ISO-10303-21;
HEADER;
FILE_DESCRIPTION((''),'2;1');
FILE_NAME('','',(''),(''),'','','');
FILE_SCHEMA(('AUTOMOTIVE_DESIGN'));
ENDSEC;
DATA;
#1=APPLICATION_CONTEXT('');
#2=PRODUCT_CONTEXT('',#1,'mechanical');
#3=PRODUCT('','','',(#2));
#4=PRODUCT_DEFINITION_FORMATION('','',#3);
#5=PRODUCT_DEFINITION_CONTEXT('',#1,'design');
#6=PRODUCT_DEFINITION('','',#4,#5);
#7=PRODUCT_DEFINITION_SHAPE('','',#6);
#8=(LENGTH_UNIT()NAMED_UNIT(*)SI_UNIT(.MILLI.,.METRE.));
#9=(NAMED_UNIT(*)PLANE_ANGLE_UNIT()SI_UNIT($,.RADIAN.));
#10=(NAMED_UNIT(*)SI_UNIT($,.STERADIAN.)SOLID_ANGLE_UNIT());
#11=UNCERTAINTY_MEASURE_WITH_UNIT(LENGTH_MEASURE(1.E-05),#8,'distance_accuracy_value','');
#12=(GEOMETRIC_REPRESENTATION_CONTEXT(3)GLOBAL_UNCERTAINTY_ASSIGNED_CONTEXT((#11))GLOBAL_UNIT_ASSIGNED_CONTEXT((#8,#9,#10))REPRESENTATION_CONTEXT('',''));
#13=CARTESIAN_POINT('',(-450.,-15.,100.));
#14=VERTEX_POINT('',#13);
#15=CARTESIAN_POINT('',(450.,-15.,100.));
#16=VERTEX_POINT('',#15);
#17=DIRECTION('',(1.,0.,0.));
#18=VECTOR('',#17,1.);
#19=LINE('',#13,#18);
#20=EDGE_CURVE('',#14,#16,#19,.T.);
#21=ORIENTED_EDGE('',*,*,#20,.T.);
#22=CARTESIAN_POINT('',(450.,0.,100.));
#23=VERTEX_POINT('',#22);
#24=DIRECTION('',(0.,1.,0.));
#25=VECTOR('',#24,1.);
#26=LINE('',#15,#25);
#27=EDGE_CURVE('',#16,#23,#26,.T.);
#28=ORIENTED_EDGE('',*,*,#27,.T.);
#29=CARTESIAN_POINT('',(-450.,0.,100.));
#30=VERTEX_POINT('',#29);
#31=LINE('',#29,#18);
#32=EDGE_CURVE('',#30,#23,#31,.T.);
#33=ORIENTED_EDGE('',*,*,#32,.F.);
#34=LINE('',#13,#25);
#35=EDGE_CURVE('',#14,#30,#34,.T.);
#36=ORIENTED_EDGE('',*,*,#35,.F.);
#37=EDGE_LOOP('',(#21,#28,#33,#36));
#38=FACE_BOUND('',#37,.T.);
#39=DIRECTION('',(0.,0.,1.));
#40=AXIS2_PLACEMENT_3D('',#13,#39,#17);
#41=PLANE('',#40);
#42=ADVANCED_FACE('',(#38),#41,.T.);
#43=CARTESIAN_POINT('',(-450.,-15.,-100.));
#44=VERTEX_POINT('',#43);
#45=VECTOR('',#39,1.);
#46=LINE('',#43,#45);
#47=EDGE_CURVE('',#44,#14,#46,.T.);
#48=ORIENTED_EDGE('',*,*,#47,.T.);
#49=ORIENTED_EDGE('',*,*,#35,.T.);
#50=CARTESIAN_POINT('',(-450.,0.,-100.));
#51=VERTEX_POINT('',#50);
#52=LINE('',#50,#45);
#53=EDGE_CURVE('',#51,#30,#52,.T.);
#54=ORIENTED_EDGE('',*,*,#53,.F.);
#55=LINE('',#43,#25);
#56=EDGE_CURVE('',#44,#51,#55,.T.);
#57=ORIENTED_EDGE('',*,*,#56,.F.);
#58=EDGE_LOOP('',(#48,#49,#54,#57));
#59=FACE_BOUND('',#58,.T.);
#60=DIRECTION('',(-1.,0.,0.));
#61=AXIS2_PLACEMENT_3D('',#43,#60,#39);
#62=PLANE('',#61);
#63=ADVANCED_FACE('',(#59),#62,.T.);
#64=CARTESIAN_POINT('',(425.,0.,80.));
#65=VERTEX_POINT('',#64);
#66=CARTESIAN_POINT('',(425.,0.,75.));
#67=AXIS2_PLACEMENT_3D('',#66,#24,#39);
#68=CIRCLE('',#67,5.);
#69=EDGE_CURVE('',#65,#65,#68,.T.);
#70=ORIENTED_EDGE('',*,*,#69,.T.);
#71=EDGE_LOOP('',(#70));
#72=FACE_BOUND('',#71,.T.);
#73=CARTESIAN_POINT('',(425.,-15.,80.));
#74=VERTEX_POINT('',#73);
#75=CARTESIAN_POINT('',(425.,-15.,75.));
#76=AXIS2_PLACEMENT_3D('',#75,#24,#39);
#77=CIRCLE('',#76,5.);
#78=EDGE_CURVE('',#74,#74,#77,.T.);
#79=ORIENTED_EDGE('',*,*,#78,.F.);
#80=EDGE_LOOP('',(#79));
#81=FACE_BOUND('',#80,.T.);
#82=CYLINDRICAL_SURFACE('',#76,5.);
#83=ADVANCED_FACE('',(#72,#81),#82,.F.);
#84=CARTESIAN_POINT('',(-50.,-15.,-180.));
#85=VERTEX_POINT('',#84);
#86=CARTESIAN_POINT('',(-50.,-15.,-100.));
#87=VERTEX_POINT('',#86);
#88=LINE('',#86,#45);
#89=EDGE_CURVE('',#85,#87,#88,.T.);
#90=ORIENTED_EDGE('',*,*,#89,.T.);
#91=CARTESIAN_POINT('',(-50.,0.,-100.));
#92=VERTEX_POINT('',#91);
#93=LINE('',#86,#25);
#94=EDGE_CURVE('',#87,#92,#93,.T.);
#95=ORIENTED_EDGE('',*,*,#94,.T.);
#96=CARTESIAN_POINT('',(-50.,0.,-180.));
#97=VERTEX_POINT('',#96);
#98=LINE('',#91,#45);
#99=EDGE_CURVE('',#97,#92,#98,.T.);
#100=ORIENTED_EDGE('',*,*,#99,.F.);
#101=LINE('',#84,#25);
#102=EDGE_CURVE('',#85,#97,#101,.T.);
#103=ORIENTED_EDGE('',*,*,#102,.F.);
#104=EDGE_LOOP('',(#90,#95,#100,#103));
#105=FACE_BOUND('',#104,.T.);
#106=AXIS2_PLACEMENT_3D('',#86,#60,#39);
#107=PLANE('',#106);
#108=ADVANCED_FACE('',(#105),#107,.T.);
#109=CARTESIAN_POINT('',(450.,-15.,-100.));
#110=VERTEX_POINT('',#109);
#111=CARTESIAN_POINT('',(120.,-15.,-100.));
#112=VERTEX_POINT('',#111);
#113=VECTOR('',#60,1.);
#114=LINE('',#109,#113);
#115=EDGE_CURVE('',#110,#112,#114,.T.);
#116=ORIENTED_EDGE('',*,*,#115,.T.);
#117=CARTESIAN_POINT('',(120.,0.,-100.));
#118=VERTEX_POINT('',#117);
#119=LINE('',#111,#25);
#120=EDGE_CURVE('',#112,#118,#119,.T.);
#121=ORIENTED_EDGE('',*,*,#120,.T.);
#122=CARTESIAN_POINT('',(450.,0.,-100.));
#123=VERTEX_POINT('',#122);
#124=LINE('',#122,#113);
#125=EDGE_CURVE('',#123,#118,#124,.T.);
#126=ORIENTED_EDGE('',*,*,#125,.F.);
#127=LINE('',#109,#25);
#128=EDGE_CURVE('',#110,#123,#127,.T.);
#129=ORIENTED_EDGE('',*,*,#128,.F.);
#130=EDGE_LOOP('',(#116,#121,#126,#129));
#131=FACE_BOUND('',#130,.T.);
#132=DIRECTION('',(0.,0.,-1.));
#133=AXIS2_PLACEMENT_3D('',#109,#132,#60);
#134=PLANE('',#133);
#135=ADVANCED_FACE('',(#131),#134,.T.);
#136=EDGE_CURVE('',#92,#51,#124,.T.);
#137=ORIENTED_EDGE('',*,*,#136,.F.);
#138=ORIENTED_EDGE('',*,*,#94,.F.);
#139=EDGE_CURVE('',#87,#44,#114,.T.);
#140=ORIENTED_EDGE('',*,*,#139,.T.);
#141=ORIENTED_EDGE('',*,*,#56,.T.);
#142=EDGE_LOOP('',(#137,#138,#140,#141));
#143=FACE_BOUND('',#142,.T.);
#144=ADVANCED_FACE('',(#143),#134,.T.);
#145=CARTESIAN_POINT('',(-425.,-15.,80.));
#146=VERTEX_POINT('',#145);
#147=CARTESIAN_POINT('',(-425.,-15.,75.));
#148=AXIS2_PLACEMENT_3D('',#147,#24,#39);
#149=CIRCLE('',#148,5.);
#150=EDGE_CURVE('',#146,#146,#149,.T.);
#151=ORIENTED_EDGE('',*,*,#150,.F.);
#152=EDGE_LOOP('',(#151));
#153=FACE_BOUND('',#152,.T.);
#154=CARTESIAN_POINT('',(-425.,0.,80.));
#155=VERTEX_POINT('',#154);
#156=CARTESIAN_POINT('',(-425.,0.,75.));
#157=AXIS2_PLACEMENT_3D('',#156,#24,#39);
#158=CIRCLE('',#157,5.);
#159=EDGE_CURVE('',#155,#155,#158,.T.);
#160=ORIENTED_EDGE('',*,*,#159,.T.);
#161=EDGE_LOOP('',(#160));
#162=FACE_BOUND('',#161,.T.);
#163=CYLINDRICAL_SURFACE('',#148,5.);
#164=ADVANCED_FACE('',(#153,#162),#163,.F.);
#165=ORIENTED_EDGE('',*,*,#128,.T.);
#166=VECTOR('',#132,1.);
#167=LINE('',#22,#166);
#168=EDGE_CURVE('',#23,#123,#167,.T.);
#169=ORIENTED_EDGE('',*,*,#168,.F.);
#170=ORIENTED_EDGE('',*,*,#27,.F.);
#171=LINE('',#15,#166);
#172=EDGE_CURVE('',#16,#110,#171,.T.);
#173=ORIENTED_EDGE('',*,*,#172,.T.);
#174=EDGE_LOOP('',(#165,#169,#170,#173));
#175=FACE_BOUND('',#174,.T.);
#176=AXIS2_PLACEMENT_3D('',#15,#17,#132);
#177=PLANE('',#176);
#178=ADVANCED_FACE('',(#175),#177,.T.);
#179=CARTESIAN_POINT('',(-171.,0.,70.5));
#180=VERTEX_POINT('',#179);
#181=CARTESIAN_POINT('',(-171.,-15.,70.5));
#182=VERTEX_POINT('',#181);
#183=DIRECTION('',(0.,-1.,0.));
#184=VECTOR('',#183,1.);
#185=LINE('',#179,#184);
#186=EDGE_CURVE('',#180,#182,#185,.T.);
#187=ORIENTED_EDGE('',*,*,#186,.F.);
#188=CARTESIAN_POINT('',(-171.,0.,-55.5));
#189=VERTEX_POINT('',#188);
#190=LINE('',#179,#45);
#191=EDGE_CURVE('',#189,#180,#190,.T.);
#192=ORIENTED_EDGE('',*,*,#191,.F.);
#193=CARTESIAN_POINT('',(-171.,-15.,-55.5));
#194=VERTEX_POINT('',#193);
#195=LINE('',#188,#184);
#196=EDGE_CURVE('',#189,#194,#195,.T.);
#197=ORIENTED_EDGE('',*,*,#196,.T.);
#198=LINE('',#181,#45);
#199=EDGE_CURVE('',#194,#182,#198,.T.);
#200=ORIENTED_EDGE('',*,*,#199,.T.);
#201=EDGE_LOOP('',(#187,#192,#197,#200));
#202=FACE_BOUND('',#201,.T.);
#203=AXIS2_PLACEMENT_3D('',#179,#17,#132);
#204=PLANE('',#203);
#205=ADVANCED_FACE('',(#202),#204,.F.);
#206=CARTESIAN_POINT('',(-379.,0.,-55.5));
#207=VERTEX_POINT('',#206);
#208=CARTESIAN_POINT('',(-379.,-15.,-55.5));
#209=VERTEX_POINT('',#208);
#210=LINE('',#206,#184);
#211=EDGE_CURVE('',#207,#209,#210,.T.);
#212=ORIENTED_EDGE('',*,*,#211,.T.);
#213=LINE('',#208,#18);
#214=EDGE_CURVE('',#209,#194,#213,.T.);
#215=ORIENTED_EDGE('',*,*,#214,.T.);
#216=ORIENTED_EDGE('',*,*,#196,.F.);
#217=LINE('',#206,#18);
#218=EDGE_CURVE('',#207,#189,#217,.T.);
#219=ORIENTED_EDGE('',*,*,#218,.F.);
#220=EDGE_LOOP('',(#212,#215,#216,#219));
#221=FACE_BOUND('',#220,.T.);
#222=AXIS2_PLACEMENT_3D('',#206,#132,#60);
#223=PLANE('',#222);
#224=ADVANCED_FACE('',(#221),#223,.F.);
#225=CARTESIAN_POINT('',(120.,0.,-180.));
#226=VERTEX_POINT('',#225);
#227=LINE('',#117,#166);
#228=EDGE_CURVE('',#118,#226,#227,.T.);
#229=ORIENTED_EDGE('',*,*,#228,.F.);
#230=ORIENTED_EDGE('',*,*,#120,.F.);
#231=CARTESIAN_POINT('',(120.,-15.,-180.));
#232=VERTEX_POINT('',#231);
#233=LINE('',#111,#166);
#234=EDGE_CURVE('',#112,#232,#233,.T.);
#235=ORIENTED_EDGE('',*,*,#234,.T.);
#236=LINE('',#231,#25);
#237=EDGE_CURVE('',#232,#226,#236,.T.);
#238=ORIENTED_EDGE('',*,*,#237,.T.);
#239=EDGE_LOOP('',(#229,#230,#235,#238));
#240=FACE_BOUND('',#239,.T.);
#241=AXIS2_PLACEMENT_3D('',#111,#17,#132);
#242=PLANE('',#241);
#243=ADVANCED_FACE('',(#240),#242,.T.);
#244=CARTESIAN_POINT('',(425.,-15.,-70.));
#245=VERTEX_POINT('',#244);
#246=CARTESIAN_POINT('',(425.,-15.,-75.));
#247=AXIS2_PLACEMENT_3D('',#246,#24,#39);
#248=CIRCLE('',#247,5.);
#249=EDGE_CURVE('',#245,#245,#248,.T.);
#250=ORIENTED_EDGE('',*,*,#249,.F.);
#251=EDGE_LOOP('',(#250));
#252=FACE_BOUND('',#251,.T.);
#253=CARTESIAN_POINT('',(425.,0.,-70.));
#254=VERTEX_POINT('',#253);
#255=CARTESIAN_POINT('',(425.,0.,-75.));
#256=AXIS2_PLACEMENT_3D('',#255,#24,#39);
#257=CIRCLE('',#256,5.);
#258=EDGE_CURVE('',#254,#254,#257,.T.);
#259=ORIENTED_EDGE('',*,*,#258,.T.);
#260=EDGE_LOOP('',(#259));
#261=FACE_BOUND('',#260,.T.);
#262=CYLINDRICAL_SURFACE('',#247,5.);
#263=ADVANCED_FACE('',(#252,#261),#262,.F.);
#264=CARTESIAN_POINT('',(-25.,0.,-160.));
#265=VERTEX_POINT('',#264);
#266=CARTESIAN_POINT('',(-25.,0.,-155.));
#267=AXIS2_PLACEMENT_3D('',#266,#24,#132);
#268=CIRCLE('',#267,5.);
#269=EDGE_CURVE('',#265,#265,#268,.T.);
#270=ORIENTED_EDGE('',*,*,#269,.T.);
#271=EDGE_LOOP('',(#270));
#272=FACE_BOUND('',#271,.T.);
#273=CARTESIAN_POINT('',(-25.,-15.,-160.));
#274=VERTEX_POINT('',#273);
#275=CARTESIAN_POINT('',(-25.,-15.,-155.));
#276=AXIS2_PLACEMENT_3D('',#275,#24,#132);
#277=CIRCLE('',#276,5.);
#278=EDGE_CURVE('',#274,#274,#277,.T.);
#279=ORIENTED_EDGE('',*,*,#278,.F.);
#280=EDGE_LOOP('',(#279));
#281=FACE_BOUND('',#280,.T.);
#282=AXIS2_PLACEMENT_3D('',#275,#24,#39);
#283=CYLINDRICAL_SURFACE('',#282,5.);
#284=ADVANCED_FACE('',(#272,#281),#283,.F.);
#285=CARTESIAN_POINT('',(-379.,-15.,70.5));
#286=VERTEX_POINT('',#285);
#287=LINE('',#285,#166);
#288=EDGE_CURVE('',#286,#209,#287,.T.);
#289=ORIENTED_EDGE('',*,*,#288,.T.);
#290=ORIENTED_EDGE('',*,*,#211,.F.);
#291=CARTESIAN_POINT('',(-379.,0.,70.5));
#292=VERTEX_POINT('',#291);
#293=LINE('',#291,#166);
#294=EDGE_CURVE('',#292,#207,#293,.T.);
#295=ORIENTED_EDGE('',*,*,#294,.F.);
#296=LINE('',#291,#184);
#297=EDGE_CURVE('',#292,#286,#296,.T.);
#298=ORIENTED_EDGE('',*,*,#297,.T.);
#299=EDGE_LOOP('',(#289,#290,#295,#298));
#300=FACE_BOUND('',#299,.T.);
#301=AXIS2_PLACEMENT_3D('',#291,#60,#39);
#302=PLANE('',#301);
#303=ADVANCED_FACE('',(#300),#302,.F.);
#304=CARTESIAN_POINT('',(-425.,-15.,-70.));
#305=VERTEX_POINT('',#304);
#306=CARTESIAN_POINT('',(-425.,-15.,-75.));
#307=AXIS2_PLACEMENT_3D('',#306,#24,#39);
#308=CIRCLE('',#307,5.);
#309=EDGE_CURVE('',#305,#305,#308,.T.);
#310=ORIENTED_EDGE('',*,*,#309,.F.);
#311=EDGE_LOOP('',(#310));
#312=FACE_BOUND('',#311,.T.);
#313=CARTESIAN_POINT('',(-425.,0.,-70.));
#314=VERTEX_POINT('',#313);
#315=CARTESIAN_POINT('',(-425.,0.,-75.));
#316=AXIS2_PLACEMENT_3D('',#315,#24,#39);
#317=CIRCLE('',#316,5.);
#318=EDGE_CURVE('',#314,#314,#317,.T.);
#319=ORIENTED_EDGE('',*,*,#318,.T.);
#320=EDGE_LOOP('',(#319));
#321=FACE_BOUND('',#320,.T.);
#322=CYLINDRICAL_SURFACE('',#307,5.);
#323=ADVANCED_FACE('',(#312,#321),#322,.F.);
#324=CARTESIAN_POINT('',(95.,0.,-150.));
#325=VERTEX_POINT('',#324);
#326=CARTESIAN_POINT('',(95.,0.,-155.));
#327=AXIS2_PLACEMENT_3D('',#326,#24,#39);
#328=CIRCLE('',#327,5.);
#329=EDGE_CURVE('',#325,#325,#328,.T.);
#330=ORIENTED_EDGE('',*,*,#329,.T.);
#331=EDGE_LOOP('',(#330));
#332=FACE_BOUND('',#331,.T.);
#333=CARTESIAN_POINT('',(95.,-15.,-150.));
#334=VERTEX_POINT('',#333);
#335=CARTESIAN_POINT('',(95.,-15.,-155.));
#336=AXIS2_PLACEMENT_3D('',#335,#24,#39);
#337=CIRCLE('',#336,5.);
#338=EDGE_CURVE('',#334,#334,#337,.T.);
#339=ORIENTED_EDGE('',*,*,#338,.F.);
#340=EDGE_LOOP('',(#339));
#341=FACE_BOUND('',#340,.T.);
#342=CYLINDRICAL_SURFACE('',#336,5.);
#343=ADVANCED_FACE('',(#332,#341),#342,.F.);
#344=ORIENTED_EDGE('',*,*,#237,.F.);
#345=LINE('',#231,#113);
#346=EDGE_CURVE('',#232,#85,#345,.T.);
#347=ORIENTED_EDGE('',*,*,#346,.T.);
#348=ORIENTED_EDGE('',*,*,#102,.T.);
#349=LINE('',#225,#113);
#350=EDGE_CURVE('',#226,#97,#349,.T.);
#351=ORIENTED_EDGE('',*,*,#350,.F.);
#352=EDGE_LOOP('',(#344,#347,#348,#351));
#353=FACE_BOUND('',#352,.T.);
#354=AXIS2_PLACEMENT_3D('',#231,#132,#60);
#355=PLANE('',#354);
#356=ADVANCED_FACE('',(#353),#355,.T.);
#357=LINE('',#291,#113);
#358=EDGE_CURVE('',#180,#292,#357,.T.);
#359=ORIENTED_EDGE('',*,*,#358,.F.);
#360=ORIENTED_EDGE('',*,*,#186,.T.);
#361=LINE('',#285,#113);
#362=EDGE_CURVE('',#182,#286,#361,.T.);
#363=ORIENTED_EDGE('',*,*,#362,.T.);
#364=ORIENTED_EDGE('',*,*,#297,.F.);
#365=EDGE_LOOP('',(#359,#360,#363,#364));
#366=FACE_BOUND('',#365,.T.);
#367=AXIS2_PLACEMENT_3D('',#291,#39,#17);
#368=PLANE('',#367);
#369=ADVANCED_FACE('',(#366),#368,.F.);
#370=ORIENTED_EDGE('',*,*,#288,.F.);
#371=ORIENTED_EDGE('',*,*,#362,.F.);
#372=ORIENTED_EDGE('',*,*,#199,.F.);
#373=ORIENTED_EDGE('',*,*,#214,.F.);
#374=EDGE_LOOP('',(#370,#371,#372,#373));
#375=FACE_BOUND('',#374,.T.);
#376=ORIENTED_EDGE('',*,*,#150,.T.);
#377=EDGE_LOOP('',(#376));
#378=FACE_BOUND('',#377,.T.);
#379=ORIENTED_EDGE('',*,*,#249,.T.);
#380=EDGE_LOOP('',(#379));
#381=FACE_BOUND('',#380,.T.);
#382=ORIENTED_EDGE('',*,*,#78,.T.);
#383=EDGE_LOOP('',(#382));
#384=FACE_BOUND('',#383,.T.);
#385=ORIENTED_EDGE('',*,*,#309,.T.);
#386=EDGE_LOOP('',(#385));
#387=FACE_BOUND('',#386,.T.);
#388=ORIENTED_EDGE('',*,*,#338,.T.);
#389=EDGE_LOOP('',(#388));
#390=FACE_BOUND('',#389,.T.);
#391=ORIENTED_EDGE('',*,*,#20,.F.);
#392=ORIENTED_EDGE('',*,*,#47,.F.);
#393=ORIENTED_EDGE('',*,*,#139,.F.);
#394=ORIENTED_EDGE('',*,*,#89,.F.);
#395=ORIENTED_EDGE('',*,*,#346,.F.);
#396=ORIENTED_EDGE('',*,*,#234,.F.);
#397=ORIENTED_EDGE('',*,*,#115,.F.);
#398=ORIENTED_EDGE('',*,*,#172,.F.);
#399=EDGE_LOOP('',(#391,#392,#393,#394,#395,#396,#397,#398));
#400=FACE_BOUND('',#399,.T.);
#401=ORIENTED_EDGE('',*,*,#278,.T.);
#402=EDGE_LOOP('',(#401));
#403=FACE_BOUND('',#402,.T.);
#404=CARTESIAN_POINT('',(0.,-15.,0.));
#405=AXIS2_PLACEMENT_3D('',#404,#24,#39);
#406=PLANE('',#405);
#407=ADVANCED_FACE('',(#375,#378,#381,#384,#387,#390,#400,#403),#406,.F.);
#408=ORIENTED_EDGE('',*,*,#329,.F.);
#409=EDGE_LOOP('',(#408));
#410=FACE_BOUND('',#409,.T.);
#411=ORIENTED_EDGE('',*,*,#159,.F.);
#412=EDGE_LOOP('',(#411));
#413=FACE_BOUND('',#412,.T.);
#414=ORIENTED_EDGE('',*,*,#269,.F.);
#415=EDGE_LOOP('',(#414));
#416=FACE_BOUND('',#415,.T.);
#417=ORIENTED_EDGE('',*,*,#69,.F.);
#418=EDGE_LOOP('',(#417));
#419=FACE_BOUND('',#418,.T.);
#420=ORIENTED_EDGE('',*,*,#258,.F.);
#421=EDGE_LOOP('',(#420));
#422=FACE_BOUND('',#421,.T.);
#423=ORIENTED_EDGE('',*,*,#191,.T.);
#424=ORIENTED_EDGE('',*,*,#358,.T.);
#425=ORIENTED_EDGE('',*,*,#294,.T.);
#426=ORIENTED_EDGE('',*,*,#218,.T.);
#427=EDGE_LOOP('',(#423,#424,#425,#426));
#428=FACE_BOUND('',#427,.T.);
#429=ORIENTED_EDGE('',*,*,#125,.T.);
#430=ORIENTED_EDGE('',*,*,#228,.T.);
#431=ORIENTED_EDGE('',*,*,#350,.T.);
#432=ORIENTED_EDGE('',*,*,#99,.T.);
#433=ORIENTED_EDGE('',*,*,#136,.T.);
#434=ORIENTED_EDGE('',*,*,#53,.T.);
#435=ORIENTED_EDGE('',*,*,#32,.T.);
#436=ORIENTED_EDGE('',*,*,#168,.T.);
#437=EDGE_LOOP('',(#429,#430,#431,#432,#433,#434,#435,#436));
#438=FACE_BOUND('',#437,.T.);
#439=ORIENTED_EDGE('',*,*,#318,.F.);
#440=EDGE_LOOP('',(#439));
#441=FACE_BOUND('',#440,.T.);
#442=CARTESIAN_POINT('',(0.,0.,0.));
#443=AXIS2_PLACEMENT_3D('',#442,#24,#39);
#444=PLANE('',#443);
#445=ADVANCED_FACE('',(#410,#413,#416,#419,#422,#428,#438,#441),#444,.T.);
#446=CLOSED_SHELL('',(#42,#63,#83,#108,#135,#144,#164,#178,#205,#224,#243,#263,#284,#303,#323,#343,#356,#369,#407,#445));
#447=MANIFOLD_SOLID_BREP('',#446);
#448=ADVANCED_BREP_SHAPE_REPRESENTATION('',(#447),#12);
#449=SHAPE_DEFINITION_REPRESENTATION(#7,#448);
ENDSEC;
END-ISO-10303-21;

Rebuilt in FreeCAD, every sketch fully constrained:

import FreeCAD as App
import Part
import Sketcher
Q = App.Units.Quantity

doc = App.newDocument("Part")
body = doc.addObject("PartDesign::Body", "Body")

# Sketch on XZ plane
sketch1 = body.newObject("Sketcher::SketchObject", "Sketch")
sketch1.AttachmentSupport = (doc.getObject("XZ_Plane"), [""])
sketch1.MapMode = "FlatFace"
sketch1.addGeometry([
    Part.LineSegment(App.Vector(-450, -100, 0), App.Vector(-450, 100, 0)),  # 0
    Part.LineSegment(App.Vector(-450, 100, 0), App.Vector(450, 100, 0)),  # 1
    Part.LineSegment(App.Vector(450, 100, 0), App.Vector(450, -100, 0)),  # 2
    Part.LineSegment(App.Vector(450, -100, 0), App.Vector(-450, -100, 0)),  # 3
    Part.Circle(App.Vector(-425, 75, 0), App.Vector(0, 0, 1), 5),  # 4
    Part.Circle(App.Vector(425, 75, 0), App.Vector(0, 0, 1), 5),  # 5
    Part.Circle(App.Vector(-425, -75, 0), App.Vector(0, 0, 1), 5),  # 6
    Part.Circle(App.Vector(425, -75, 0), App.Vector(0, 0, 1), 5),  # 7
], False)
sketch1.addConstraint([
    Sketcher.Constraint("Coincident", 0, 2, 1, 1),
    Sketcher.Constraint("Coincident", 1, 2, 2, 1),
    Sketcher.Constraint("Coincident", 2, 2, 3, 1),
    Sketcher.Constraint("Coincident", 3, 2, 0, 1),
    Sketcher.Constraint("Vertical", 0),
    Sketcher.Constraint("Horizontal", 1),
    Sketcher.Constraint("Vertical", 2),
    Sketcher.Constraint("Horizontal", 3),
    Sketcher.Constraint("Equal", 4, 5),
    Sketcher.Constraint("Equal", 5, 6),
    Sketcher.Constraint("Equal", 6, 7),
    Sketcher.Constraint("Symmetric", 5, 3, 6, 3, -1, 1),
    Sketcher.Constraint("Symmetric", 4, 3, 7, 3, -1, 1),
    Sketcher.Constraint("Symmetric", 0, 2, 2, 2, -1, 1),
    Sketcher.Constraint("Symmetric", 4, 3, 5, 3, -2),
    Sketcher.Constraint("Diameter", 4, Q("10 mm")),
    Sketcher.Constraint("DistanceX", 1, 1, 1, 2, Q("900 mm")),
    Sketcher.Constraint("DistanceY", 0, 1, 0, 2, Q("200 mm")),
    Sketcher.Constraint("DistanceX", 4, 3, -1, 1, Q("425 mm")),
    Sketcher.Constraint("DistanceY", -1, 1, 4, 3, Q("75 mm")),
])
pad1 = body.newObject("PartDesign::Pad", "Pad")
pad1.Profile = sketch1
pad1.Length = 15

# Sketch on XZ plane
sketch2 = body.newObject("Sketcher::SketchObject", "Sketch001")
sketch2.AttachmentSupport = (doc.getObject("XZ_Plane"), [""])
sketch2.MapMode = "FlatFace"
sketch2.AttachmentOffset = App.Placement(App.Vector(0, 0, 15), App.Rotation())
sketch2.addGeometry([
    Part.LineSegment(App.Vector(-379, 70, 0), App.Vector(-379, -56, 0)),
    Part.LineSegment(App.Vector(-379, -56, 0), App.Vector(-171, -56, 0)),
    Part.LineSegment(App.Vector(-171, -56, 0), App.Vector(-171, 70, 0)),
    Part.LineSegment(App.Vector(-171, 70, 0), App.Vector(-379, 70, 0)),
], False)
sketch2.addConstraint([
    Sketcher.Constraint("Coincident", 0, 2, 1, 1),
    Sketcher.Constraint("Coincident", 1, 2, 2, 1),
    Sketcher.Constraint("Coincident", 2, 2, 3, 1),
    Sketcher.Constraint("Coincident", 3, 2, 0, 1),
    Sketcher.Constraint("Vertical", 0),
    Sketcher.Constraint("Horizontal", 1),
    Sketcher.Constraint("Vertical", 2),
    Sketcher.Constraint("Horizontal", 3),
    Sketcher.Constraint("DistanceX", 1, 1, 1, 2, Q("208 mm")),
    Sketcher.Constraint("DistanceY", 0, 2, 0, 1, Q("126 mm")),
    Sketcher.Constraint("DistanceX", 0, 2, -1, 1, Q("379 mm")),
    Sketcher.Constraint("DistanceY", 0, 2, -1, 1, Q("55.5 mm")),
])
pocket1 = body.newObject("PartDesign::Pocket", "Pocket")
pocket1.Profile = sketch2
pocket1.Type = "ThroughAll"

# Sketch on XZ plane
sketch3 = body.newObject("Sketcher::SketchObject", "Sketch002")
sketch3.AttachmentSupport = (doc.getObject("XZ_Plane"), [""])
sketch3.MapMode = "FlatFace"
sketch3.addGeometry([
    Part.LineSegment(App.Vector(-50, -180, 0), App.Vector(-50, -100, 0)),  # 0
    Part.LineSegment(App.Vector(-50, -100, 0), App.Vector(120, -100, 0)),  # 1
    Part.LineSegment(App.Vector(120, -100, 0), App.Vector(120, -180, 0)),  # 2
    Part.LineSegment(App.Vector(120, -180, 0), App.Vector(-50, -180, 0)),  # 3
    Part.Circle(App.Vector(-25, -155, 0), App.Vector(0, 0, 1), 5),  # 4
    Part.Circle(App.Vector(95, -155, 0), App.Vector(0, 0, 1), 5),  # 5
], False)
sketch3.addConstraint([
    Sketcher.Constraint("Coincident", 0, 2, 1, 1),
    Sketcher.Constraint("Coincident", 1, 2, 2, 1),
    Sketcher.Constraint("Coincident", 2, 2, 3, 1),
    Sketcher.Constraint("Coincident", 3, 2, 0, 1),
    Sketcher.Constraint("Vertical", 0),
    Sketcher.Constraint("Horizontal", 1),
    Sketcher.Constraint("Vertical", 2),
    Sketcher.Constraint("Horizontal", 3),
    Sketcher.Constraint("Equal", 4, 5),
    Sketcher.Constraint("Horizontal", 4, 3, 5, 3),
    Sketcher.Constraint("Diameter", 4, Q("10 mm")),
    Sketcher.Constraint("DistanceX", 1, 1, 1, 2, Q("170 mm")),
    Sketcher.Constraint("DistanceY", 0, 1, 0, 2, Q("80 mm")),
    Sketcher.Constraint("DistanceX", 4, 3, -1, 1, Q("25 mm")),
    Sketcher.Constraint("DistanceY", 4, 3, -1, 1, Q("155 mm")),
    Sketcher.Constraint("DistanceX", -1, 1, 5, 3, Q("95 mm")),
    Sketcher.Constraint("DistanceX", 0, 2, -1, 1, Q("50 mm")),
    Sketcher.Constraint("DistanceY", 0, 2, -1, 1, Q("100 mm")),
])
pad2 = body.newObject("PartDesign::Pad", "Pad001")
pad2.Profile = sketch3
pad2.Length = 15

doc.recompute()
